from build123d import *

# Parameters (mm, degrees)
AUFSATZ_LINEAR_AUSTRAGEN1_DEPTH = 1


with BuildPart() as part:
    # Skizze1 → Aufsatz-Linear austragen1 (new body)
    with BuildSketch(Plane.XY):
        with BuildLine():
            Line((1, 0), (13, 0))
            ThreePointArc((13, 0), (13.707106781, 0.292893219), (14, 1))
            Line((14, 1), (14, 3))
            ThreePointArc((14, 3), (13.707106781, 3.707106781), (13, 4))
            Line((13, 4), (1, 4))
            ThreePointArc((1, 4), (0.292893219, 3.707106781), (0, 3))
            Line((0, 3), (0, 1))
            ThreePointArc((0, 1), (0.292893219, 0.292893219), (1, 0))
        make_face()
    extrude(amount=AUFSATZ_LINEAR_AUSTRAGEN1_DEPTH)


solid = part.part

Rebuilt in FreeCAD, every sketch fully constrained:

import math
import FreeCAD as App
import Part
import Sketcher

V = App.Vector

doc = App.newDocument("Part")
body = doc.addObject("PartDesign::Body", "Body")

sketch1 = body.newObject("Sketcher::SketchObject", "Sketch")
sketch1.AttachmentSupport = (doc.getObject("XY_Plane"), [""])
sketch1.MapMode = "FlatFace"
sketch1.addGeometry([
    Part.LineSegment(V(1, 0, 0), V(13, 0, 0)),
    Part.ArcOfCircle(Part.Circle(V(13, 1, 0), V(0, 0, 1), 1), math.radians(-90), math.radians(0)),
    Part.LineSegment(V(14, 1, 0), V(14, 3, 0)),
    Part.ArcOfCircle(Part.Circle(V(13, 3, 0), V(0, 0, 1), 1), math.radians(0), math.radians(90)),
    Part.LineSegment(V(13, 4, 0), V(1, 4, 0)),
    Part.ArcOfCircle(Part.Circle(V(1, 3, 0), V(0, 0, 1), 1), math.radians(90), math.radians(180)),
    Part.LineSegment(V(0, 3, 0), V(0, 1, 0)),
    Part.ArcOfCircle(Part.Circle(V(1, 1, 0), V(0, 0, 1), 1), math.radians(-180), math.radians(-90)),
], False)
sketch1.addConstraint([
    Sketcher.Constraint("Tangent", 0, 2, 1, 1),
    Sketcher.Constraint("Tangent", 1, 2, 2, 1),
    Sketcher.Constraint("Tangent", 2, 2, 3, 1),
    Sketcher.Constraint("Tangent", 3, 2, 4, 1),
    Sketcher.Constraint("Tangent", 4, 2, 5, 1),
    Sketcher.Constraint("Tangent", 5, 2, 6, 1),
    Sketcher.Constraint("Tangent", 6, 2, 7, 1),
    Sketcher.Constraint("Tangent", 7, 2, 0, 1),
    Sketcher.Constraint("Horizontal", 0),
    Sketcher.Constraint("Vertical", 2),
    Sketcher.Constraint("Horizontal", 4),
    Sketcher.Constraint("Vertical", 6),
    Sketcher.Constraint("Equal", 1, 3),
    Sketcher.Constraint("Equal", 3, 5),
    Sketcher.Constraint("Equal", 5, 7),
    Sketcher.Constraint("PointOnObject", 0, 2, -1),
    Sketcher.Constraint("PointOnObject", 5, 2, -2),
    Sketcher.Constraint("Radius", 1, 1.0),
    Sketcher.Constraint("DistanceX", 0, 1, 0, 2, 12.0),
    Sketcher.Constraint("DistanceY", 2, 1, 2, 2, 2.0),
])
pad1 = body.newObject("PartDesign::Pad", "Pad")
pad1.Profile = sketch1
pad1.Length = 1

doc.recompute()
